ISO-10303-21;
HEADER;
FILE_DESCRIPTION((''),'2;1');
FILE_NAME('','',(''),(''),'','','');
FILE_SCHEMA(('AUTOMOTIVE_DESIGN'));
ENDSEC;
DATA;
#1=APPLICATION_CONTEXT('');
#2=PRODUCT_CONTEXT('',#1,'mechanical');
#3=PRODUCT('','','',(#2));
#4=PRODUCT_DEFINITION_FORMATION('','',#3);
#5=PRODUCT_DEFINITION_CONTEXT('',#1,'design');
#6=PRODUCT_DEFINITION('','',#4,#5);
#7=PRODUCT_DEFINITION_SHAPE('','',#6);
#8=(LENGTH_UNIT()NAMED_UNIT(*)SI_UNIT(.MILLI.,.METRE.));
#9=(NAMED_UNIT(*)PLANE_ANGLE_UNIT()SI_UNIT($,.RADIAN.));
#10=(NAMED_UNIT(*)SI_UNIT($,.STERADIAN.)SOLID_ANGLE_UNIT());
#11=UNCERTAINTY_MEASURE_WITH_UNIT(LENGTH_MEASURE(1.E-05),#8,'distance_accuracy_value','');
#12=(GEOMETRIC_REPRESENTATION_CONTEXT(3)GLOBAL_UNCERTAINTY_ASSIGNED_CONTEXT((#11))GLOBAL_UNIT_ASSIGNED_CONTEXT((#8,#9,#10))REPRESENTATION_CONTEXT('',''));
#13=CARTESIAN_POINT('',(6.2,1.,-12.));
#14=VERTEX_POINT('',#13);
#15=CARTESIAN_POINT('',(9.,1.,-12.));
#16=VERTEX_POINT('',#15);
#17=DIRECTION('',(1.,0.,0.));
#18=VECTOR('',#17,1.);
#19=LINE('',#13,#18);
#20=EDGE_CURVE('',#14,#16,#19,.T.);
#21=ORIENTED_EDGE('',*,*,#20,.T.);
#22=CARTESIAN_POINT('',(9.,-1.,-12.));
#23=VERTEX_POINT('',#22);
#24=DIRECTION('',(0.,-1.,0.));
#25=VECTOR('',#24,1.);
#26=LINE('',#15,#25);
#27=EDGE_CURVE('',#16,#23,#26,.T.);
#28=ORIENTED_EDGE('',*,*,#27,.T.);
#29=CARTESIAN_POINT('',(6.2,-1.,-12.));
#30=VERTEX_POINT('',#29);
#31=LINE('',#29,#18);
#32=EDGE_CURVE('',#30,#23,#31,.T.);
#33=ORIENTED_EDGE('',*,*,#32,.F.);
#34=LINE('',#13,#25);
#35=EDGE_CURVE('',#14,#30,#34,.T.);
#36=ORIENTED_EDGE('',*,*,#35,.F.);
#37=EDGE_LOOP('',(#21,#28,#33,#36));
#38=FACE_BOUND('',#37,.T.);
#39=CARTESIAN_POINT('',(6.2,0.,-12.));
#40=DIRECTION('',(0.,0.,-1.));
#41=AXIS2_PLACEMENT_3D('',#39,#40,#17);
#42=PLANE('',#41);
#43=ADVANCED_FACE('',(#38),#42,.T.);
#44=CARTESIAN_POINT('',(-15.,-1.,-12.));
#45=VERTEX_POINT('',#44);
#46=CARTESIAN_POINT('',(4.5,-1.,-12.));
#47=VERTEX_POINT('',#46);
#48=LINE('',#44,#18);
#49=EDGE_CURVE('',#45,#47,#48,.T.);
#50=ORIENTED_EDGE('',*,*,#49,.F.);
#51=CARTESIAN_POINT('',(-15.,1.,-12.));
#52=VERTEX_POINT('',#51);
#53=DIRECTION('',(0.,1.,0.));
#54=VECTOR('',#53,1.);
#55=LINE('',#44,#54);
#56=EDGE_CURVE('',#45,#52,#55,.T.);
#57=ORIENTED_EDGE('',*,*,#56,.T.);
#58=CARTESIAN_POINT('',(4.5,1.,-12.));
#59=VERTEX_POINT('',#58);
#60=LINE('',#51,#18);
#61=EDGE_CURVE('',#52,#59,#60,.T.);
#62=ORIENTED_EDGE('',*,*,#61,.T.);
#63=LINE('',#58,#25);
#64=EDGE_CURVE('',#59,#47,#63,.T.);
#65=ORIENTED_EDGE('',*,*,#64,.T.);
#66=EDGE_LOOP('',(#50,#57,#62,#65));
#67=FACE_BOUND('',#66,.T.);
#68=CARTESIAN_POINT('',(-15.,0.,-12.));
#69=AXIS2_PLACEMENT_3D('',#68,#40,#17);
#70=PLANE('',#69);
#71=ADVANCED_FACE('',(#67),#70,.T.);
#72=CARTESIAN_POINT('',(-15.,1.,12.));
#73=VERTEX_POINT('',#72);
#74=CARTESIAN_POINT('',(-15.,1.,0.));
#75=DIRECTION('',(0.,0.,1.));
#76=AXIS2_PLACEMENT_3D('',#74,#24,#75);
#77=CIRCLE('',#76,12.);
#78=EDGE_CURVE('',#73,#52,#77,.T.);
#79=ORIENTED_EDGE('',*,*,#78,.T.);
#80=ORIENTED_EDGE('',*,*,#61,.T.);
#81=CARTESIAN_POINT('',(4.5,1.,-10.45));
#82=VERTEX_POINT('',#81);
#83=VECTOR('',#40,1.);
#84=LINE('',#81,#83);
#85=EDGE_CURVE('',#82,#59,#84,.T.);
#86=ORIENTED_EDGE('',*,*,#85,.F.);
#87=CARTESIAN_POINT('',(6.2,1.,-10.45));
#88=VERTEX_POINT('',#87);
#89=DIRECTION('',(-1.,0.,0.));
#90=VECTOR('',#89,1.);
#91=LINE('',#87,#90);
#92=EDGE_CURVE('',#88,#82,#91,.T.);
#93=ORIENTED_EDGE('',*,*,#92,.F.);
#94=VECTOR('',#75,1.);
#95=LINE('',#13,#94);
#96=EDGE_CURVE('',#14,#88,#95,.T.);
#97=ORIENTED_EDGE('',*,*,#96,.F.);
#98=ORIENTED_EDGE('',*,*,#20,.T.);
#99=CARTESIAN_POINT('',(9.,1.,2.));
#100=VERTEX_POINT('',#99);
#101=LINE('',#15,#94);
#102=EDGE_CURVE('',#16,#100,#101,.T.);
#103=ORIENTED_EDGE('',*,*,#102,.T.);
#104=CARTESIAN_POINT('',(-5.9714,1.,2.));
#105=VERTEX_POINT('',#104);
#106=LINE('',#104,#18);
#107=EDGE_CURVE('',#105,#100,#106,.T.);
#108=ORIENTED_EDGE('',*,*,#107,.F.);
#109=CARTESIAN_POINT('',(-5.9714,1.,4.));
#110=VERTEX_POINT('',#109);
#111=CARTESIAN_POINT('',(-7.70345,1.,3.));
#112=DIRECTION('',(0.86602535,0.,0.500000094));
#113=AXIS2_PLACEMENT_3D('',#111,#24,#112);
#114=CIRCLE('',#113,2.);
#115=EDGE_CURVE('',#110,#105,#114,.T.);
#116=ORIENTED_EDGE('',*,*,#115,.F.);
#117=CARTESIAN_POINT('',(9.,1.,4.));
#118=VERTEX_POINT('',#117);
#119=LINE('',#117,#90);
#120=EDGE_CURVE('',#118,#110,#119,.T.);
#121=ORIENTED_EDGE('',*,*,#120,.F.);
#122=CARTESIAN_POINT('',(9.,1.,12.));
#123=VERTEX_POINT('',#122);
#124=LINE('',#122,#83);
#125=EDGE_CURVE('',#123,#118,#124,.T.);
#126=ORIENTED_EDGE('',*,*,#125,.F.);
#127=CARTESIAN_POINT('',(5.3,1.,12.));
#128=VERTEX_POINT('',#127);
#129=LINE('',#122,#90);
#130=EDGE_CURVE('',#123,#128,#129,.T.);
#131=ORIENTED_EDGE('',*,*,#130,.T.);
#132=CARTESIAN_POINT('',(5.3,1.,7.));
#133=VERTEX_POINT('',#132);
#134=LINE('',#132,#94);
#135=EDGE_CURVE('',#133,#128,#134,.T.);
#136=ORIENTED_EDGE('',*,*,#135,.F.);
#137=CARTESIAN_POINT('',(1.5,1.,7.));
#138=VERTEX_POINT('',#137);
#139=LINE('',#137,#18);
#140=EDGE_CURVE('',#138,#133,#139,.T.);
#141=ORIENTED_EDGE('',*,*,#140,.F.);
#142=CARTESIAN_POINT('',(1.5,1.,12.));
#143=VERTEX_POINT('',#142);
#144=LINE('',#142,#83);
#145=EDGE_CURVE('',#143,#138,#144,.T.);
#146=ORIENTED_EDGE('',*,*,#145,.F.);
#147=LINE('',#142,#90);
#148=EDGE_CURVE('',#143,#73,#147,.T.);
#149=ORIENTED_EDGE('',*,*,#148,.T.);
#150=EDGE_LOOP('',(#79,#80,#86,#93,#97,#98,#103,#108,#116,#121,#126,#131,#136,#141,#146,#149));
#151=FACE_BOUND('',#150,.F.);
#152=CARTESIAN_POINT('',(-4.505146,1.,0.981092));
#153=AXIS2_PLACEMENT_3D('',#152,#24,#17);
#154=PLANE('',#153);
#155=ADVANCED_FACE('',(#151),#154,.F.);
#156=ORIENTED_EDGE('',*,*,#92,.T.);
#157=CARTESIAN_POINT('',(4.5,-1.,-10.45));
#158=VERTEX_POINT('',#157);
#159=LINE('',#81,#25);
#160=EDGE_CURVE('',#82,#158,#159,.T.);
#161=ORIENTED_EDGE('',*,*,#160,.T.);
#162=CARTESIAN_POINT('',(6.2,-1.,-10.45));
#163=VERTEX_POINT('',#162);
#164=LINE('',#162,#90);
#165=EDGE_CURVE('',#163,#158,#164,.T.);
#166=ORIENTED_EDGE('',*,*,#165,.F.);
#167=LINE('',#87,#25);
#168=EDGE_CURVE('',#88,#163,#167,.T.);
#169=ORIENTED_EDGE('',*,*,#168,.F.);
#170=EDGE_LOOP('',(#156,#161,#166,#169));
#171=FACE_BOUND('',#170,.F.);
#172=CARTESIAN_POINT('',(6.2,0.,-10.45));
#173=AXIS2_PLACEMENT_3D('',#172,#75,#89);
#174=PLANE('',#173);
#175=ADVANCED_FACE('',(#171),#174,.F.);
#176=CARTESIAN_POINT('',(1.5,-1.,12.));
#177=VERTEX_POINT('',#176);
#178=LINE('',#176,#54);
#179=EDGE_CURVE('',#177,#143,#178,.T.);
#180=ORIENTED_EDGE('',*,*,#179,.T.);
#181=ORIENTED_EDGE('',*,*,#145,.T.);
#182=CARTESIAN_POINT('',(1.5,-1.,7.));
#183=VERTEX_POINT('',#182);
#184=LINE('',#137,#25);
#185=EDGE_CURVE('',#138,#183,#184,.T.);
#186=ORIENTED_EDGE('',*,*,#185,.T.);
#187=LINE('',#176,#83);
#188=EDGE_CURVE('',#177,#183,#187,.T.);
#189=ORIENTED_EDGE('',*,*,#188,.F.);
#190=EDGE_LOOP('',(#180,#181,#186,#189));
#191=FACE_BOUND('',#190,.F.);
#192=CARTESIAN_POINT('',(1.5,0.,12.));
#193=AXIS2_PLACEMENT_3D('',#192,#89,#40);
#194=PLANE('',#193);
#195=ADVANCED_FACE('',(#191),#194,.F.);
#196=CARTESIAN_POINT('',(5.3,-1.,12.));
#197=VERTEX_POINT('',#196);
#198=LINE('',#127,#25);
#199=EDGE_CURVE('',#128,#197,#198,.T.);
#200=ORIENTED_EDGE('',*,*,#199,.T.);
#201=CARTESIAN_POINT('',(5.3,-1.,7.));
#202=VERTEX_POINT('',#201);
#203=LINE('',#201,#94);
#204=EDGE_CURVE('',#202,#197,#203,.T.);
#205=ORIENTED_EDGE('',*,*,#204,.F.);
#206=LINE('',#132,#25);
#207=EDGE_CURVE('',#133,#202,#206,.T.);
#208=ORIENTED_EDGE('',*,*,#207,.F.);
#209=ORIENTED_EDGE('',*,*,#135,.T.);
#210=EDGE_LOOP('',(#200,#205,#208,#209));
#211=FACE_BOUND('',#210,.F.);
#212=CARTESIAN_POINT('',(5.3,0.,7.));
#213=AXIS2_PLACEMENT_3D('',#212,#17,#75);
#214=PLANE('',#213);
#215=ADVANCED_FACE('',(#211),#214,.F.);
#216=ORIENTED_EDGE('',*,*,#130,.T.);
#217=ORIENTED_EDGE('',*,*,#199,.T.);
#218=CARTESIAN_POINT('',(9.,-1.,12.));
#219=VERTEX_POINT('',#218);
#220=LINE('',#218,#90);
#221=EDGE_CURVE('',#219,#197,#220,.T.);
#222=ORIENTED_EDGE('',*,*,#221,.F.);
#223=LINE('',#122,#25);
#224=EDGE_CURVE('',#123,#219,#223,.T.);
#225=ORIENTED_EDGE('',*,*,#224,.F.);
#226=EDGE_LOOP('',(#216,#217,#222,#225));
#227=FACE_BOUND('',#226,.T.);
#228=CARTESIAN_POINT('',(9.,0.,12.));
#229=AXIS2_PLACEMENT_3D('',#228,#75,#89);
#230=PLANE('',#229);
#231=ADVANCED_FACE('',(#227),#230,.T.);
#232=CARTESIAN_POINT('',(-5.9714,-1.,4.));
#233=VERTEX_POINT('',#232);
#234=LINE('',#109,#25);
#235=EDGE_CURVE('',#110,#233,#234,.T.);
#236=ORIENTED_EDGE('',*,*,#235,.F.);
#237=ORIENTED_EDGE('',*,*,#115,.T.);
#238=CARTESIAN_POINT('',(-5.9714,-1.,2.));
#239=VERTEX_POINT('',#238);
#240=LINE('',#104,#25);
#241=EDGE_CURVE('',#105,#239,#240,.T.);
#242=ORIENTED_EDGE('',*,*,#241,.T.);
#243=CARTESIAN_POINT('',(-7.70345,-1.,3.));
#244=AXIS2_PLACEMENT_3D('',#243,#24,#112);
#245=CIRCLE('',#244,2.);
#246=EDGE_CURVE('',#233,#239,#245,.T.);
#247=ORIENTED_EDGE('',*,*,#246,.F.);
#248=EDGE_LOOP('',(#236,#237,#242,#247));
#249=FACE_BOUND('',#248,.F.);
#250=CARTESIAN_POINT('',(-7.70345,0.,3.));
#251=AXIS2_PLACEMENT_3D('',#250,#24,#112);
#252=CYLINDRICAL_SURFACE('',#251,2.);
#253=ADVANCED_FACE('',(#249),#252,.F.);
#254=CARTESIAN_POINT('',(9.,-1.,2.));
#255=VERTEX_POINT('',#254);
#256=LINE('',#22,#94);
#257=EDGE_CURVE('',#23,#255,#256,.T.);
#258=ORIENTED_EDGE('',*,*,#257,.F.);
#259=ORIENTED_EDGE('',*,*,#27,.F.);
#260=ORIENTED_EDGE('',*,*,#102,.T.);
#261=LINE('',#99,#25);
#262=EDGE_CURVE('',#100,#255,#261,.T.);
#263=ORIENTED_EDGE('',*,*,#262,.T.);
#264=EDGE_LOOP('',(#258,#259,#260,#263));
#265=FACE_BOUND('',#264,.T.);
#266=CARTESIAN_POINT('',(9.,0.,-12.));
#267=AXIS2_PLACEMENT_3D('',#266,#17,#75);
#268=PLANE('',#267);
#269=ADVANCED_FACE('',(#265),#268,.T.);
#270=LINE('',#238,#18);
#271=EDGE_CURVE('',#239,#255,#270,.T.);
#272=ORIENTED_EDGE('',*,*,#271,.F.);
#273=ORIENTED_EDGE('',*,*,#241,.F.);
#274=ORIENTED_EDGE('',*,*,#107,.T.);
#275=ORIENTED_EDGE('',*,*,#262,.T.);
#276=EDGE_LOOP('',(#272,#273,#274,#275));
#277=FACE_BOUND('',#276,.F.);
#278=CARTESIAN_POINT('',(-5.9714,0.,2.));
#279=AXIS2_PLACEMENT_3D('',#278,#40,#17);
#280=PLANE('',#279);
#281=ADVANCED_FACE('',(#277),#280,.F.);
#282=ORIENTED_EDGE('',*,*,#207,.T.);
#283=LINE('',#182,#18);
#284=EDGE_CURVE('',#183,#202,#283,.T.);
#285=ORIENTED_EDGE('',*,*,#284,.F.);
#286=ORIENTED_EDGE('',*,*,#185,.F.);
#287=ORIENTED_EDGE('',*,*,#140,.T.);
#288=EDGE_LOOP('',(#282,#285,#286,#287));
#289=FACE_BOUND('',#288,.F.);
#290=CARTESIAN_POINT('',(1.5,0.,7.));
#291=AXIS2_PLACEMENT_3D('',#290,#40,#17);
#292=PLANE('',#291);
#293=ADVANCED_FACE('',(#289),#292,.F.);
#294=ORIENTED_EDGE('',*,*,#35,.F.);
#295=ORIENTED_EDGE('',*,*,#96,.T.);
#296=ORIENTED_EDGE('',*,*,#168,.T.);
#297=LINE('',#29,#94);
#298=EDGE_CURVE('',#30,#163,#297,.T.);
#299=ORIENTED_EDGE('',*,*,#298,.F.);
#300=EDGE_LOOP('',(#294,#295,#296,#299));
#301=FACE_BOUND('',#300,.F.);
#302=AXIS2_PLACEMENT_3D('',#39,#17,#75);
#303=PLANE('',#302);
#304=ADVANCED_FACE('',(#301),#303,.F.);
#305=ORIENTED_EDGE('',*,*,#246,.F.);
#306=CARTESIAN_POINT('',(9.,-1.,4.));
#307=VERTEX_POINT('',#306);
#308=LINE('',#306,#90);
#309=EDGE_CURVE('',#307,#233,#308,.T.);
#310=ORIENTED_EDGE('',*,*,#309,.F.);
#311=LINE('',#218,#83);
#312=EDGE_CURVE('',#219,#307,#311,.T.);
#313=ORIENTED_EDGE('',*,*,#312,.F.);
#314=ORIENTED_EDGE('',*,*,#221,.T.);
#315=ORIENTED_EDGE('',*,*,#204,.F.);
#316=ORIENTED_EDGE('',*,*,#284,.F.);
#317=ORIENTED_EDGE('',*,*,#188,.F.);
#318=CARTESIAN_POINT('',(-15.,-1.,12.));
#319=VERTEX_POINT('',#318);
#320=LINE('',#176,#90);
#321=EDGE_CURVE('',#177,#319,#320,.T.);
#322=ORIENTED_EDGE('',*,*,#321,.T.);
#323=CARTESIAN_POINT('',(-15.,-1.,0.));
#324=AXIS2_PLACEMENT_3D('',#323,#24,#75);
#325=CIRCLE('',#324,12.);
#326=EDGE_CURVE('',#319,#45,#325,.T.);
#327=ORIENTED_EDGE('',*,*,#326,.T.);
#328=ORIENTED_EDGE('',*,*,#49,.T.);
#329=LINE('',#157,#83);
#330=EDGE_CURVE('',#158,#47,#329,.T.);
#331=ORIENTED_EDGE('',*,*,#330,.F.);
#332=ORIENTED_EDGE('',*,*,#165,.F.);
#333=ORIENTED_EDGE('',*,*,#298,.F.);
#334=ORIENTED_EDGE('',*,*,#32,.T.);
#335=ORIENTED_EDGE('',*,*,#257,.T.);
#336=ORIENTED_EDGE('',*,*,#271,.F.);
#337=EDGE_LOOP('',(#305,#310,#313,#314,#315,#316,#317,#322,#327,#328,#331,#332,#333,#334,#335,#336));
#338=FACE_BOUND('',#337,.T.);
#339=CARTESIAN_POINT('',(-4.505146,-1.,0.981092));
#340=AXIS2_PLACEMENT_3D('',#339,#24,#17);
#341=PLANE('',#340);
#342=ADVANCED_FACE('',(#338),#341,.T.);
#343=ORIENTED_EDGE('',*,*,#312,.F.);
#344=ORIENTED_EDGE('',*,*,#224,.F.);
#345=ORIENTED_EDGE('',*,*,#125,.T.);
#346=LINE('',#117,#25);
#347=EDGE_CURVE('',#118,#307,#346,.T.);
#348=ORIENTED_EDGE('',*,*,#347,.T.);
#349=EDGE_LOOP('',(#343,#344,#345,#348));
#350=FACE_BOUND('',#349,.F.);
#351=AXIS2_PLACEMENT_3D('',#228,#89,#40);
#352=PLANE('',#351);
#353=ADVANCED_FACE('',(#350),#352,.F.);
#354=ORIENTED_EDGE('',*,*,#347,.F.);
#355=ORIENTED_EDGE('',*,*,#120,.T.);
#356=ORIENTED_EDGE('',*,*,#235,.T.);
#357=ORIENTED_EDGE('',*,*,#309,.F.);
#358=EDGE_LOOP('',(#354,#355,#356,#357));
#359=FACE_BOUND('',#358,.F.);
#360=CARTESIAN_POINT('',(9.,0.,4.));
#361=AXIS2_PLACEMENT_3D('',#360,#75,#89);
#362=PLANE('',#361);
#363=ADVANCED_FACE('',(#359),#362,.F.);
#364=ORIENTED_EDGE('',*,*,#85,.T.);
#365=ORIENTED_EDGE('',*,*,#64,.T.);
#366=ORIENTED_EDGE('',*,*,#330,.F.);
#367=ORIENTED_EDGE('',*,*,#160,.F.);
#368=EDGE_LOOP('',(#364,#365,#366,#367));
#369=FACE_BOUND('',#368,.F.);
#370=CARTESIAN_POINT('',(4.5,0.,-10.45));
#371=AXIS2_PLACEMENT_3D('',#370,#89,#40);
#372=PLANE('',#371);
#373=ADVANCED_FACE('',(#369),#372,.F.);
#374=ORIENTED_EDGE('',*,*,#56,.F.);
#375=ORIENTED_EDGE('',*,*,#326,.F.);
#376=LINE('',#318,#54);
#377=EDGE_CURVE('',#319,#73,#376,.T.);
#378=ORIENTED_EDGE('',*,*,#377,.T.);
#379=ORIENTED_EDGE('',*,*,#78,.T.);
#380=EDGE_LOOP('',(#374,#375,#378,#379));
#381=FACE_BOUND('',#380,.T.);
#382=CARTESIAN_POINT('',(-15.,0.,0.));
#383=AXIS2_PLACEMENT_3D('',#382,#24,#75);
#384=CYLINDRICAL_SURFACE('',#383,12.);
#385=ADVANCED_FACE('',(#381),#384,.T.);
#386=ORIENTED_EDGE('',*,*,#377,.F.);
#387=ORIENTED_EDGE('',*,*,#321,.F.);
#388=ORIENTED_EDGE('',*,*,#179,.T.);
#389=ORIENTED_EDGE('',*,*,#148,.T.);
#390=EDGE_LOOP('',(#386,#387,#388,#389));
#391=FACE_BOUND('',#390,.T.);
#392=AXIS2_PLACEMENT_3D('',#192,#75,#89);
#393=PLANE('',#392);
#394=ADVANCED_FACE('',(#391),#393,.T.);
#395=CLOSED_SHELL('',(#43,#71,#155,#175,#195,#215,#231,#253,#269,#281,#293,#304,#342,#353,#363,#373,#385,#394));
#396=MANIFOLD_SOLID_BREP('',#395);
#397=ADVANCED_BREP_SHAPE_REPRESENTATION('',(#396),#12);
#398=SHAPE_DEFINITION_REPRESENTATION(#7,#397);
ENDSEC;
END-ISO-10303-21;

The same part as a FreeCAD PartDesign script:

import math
import FreeCAD as App
import Part
import Sketcher
from FreeCAD import Vector

doc = App.newDocument("Part")
body = doc.addObject("PartDesign::Body", "Body")

# Sketch on XZ plane
sketch1 = body.newObject("Sketcher::SketchObject", "Sketch")
sketch1.AttachmentSupport = (doc.getObject("XZ_Plane"), [""])
sketch1.MapMode = "FlatFace"
sketch1.addGeometry(Part.LineSegment(Vector(-15, -12, 0), Vector(4.5, -12, 0)), False)
sketch1.addGeometry(Part.LineSegment(Vector(4.5, -12, 0), Vector(4.5, -10.4, 0)), False)
sketch1.addGeometry(Part.LineSegment(Vector(4.5, -10.4, 0), Vector(6.2, -10.4, 0)), False)
sketch1.addGeometry(Part.LineSegment(Vector(6.2, -10.4, 0), Vector(6.2, -12, 0)), False)
sketch1.addGeometry(Part.LineSegment(Vector(6.2, -12, 0), Vector(9, -12, 0)), False)
sketch1.addGeometry(Part.LineSegment(Vector(9, -12, 0), Vector(9, 2, 0)), False)
sketch1.addGeometry(Part.LineSegment(Vector(9, 2, 0), Vector(-6, 2, 0)), False)
sketch1.addGeometry(Part.ArcOfCircle(Part.Circle(Vector(-7.7, 3, 0), Vector(0, 0, 1), 2), math.radians(30), math.radians(330)), False)
sketch1.addGeometry(Part.LineSegment(Vector(-6, 4, 0), Vector(9, 4, 0)), False)
sketch1.addGeometry(Part.LineSegment(Vector(9, 4, 0), Vector(9, 12, 0)), False)
sketch1.addGeometry(Part.LineSegment(Vector(9, 12, 0), Vector(5.3, 12, 0)), False)
sketch1.addGeometry(Part.LineSegment(Vector(5.3, 12, 0), Vector(5.3, 7, 0)), False)
sketch1.addGeometry(Part.LineSegment(Vector(5.3, 7, 0), Vector(1.5, 7, 0)), False)
sketch1.addGeometry(Part.LineSegment(Vector(1.5, 7, 0), Vector(1.5, 12, 0)), False)
sketch1.addGeometry(Part.LineSegment(Vector(1.5, 12, 0), Vector(-15, 12, 0)), False)
sketch1.addGeometry(Part.ArcOfCircle(Part.Circle(Vector(-15, 0, 0), Vector(0, 0, 1), 12), math.radians(90), math.radians(270)), False)
sketch1.addConstraint(Sketcher.Constraint("Coincident", 0, 2, 1, 1))
sketch1.addConstraint(Sketcher.Constraint("Coincident", 1, 2, 2, 1))
sketch1.addConstraint(Sketcher.Constraint("Coincident", 2, 2, 3, 1))
sketch1.addConstraint(Sketcher.Constraint("Coincident", 3, 2, 4, 1))
sketch1.addConstraint(Sketcher.Constraint("Coincident", 4, 2, 5, 1))
sketch1.addConstraint(Sketcher.Constraint("Coincident", 5, 2, 6, 1))
sketch1.addConstraint(Sketcher.Constraint("Coincident", 6, 2, 7, 2))
sketch1.addConstraint(Sketcher.Constraint("Coincident", 7, 1, 8, 1))
sketch1.addConstraint(Sketcher.Constraint("Coincident", 8, 2, 9, 1))
sketch1.addConstraint(Sketcher.Constraint("Coincident", 9, 2, 10, 1))
sketch1.addConstraint(Sketcher.Constraint("Coincident", 10, 2, 11, 1))
sketch1.addConstraint(Sketcher.Constraint("Coincident", 11, 2, 12, 1))
sketch1.addConstraint(Sketcher.Constraint("Coincident", 12, 2, 13, 1))
sketch1.addConstraint(Sketcher.Constraint("Coincident", 13, 2, 14, 1))
sketch1.addConstraint(Sketcher.Constraint("Tangent", 14, 2, 15, 1))
sketch1.addConstraint(Sketcher.Constraint("Tangent", 15, 2, 0, 1))
sketch1.addConstraint(Sketcher.Constraint("Horizontal", 0))
sketch1.addConstraint(Sketcher.Constraint("Vertical", 1))
sketch1.addConstraint(Sketcher.Constraint("Horizontal", 2))
sketch1.addConstraint(Sketcher.Constraint("Vertical", 3))
sketch1.addConstraint(Sketcher.Constraint("Horizontal", 4))
sketch1.addConstraint(Sketcher.Constraint("Vertical", 5))
sketch1.addConstraint(Sketcher.Constraint("Horizontal", 6))
sketch1.addConstraint(Sketcher.Constraint("Horizontal", 8))
sketch1.addConstraint(Sketcher.Constraint("Vertical", 9))
sketch1.addConstraint(Sketcher.Constraint("Horizontal", 10))
sketch1.addConstraint(Sketcher.Constraint("Vertical", 11))
sketch1.addConstraint(Sketcher.Constraint("Horizontal", 12))
sketch1.addConstraint(Sketcher.Constraint("Vertical", 13))
sketch1.addConstraint(Sketcher.Constraint("Horizontal", 14))
sketch1.addConstraint(Sketcher.Constraint("Symmetric", 4, 2, 9, 2, -1))
sketch1.addConstraint(Sketcher.Constraint("PointOnObject", 15, 3, -1))
sketch1.addConstraint(Sketcher.Constraint("Horizontal", 0, 2, 3, 2))
sketch1.addConstraint(Sketcher.Constraint("Vertical", 6, 2, 7, 1))
sketch1.addConstraint(Sketcher.Constraint("Radius", 7, 2.0))
sketch1.addConstraint(Sketcher.Constraint("Radius", 15, 12.0))
sketch1.addConstraint(Sketcher.Constraint("DistanceY", 5, 1, 5, 2, 14.0))
sketch1.addConstraint(Sketcher.Constraint("DistanceY", 9, 1, 9, 2, 8.0))
sketch1.addConstraint(Sketcher.Constraint("DistanceY", 11, 2, 11, 1, 5.0))
sketch1.addConstraint(Sketcher.Constraint("DistanceX", 0, 1, 0, 2, 19.5))
sketch1.addConstraint(Sketcher.Constraint("DistanceX", 2, 1, 2, 2, 1.7))
sketch1.addConstraint(Sketcher.Constraint("DistanceX", 4, 1, 4, 2, 2.8))
sketch1.addConstraint(Sketcher.Constraint("DistanceX", 10, 2, 10, 1, 3.7))
sketch1.addConstraint(Sketcher.Constraint("DistanceX", 12, 2, 12, 1, 3.8))
sketch1.addConstraint(Sketcher.Constraint("DistanceX", 15, 3, -1, 1, 15.0))
sketch1.addConstraint(Sketcher.Constraint("DistanceY", 1, 1, 1, 2, 1.55))
sketch1.addConstraint(Sketcher.Constraint("DistanceX", 6, 2, 6, 1, 14.9714))
pad1 = body.newObject("PartDesign::Pad", "Pad")
pad1.Profile = sketch1
pad1.Length = 2
pad1.Midplane = True

doc.recompute()
